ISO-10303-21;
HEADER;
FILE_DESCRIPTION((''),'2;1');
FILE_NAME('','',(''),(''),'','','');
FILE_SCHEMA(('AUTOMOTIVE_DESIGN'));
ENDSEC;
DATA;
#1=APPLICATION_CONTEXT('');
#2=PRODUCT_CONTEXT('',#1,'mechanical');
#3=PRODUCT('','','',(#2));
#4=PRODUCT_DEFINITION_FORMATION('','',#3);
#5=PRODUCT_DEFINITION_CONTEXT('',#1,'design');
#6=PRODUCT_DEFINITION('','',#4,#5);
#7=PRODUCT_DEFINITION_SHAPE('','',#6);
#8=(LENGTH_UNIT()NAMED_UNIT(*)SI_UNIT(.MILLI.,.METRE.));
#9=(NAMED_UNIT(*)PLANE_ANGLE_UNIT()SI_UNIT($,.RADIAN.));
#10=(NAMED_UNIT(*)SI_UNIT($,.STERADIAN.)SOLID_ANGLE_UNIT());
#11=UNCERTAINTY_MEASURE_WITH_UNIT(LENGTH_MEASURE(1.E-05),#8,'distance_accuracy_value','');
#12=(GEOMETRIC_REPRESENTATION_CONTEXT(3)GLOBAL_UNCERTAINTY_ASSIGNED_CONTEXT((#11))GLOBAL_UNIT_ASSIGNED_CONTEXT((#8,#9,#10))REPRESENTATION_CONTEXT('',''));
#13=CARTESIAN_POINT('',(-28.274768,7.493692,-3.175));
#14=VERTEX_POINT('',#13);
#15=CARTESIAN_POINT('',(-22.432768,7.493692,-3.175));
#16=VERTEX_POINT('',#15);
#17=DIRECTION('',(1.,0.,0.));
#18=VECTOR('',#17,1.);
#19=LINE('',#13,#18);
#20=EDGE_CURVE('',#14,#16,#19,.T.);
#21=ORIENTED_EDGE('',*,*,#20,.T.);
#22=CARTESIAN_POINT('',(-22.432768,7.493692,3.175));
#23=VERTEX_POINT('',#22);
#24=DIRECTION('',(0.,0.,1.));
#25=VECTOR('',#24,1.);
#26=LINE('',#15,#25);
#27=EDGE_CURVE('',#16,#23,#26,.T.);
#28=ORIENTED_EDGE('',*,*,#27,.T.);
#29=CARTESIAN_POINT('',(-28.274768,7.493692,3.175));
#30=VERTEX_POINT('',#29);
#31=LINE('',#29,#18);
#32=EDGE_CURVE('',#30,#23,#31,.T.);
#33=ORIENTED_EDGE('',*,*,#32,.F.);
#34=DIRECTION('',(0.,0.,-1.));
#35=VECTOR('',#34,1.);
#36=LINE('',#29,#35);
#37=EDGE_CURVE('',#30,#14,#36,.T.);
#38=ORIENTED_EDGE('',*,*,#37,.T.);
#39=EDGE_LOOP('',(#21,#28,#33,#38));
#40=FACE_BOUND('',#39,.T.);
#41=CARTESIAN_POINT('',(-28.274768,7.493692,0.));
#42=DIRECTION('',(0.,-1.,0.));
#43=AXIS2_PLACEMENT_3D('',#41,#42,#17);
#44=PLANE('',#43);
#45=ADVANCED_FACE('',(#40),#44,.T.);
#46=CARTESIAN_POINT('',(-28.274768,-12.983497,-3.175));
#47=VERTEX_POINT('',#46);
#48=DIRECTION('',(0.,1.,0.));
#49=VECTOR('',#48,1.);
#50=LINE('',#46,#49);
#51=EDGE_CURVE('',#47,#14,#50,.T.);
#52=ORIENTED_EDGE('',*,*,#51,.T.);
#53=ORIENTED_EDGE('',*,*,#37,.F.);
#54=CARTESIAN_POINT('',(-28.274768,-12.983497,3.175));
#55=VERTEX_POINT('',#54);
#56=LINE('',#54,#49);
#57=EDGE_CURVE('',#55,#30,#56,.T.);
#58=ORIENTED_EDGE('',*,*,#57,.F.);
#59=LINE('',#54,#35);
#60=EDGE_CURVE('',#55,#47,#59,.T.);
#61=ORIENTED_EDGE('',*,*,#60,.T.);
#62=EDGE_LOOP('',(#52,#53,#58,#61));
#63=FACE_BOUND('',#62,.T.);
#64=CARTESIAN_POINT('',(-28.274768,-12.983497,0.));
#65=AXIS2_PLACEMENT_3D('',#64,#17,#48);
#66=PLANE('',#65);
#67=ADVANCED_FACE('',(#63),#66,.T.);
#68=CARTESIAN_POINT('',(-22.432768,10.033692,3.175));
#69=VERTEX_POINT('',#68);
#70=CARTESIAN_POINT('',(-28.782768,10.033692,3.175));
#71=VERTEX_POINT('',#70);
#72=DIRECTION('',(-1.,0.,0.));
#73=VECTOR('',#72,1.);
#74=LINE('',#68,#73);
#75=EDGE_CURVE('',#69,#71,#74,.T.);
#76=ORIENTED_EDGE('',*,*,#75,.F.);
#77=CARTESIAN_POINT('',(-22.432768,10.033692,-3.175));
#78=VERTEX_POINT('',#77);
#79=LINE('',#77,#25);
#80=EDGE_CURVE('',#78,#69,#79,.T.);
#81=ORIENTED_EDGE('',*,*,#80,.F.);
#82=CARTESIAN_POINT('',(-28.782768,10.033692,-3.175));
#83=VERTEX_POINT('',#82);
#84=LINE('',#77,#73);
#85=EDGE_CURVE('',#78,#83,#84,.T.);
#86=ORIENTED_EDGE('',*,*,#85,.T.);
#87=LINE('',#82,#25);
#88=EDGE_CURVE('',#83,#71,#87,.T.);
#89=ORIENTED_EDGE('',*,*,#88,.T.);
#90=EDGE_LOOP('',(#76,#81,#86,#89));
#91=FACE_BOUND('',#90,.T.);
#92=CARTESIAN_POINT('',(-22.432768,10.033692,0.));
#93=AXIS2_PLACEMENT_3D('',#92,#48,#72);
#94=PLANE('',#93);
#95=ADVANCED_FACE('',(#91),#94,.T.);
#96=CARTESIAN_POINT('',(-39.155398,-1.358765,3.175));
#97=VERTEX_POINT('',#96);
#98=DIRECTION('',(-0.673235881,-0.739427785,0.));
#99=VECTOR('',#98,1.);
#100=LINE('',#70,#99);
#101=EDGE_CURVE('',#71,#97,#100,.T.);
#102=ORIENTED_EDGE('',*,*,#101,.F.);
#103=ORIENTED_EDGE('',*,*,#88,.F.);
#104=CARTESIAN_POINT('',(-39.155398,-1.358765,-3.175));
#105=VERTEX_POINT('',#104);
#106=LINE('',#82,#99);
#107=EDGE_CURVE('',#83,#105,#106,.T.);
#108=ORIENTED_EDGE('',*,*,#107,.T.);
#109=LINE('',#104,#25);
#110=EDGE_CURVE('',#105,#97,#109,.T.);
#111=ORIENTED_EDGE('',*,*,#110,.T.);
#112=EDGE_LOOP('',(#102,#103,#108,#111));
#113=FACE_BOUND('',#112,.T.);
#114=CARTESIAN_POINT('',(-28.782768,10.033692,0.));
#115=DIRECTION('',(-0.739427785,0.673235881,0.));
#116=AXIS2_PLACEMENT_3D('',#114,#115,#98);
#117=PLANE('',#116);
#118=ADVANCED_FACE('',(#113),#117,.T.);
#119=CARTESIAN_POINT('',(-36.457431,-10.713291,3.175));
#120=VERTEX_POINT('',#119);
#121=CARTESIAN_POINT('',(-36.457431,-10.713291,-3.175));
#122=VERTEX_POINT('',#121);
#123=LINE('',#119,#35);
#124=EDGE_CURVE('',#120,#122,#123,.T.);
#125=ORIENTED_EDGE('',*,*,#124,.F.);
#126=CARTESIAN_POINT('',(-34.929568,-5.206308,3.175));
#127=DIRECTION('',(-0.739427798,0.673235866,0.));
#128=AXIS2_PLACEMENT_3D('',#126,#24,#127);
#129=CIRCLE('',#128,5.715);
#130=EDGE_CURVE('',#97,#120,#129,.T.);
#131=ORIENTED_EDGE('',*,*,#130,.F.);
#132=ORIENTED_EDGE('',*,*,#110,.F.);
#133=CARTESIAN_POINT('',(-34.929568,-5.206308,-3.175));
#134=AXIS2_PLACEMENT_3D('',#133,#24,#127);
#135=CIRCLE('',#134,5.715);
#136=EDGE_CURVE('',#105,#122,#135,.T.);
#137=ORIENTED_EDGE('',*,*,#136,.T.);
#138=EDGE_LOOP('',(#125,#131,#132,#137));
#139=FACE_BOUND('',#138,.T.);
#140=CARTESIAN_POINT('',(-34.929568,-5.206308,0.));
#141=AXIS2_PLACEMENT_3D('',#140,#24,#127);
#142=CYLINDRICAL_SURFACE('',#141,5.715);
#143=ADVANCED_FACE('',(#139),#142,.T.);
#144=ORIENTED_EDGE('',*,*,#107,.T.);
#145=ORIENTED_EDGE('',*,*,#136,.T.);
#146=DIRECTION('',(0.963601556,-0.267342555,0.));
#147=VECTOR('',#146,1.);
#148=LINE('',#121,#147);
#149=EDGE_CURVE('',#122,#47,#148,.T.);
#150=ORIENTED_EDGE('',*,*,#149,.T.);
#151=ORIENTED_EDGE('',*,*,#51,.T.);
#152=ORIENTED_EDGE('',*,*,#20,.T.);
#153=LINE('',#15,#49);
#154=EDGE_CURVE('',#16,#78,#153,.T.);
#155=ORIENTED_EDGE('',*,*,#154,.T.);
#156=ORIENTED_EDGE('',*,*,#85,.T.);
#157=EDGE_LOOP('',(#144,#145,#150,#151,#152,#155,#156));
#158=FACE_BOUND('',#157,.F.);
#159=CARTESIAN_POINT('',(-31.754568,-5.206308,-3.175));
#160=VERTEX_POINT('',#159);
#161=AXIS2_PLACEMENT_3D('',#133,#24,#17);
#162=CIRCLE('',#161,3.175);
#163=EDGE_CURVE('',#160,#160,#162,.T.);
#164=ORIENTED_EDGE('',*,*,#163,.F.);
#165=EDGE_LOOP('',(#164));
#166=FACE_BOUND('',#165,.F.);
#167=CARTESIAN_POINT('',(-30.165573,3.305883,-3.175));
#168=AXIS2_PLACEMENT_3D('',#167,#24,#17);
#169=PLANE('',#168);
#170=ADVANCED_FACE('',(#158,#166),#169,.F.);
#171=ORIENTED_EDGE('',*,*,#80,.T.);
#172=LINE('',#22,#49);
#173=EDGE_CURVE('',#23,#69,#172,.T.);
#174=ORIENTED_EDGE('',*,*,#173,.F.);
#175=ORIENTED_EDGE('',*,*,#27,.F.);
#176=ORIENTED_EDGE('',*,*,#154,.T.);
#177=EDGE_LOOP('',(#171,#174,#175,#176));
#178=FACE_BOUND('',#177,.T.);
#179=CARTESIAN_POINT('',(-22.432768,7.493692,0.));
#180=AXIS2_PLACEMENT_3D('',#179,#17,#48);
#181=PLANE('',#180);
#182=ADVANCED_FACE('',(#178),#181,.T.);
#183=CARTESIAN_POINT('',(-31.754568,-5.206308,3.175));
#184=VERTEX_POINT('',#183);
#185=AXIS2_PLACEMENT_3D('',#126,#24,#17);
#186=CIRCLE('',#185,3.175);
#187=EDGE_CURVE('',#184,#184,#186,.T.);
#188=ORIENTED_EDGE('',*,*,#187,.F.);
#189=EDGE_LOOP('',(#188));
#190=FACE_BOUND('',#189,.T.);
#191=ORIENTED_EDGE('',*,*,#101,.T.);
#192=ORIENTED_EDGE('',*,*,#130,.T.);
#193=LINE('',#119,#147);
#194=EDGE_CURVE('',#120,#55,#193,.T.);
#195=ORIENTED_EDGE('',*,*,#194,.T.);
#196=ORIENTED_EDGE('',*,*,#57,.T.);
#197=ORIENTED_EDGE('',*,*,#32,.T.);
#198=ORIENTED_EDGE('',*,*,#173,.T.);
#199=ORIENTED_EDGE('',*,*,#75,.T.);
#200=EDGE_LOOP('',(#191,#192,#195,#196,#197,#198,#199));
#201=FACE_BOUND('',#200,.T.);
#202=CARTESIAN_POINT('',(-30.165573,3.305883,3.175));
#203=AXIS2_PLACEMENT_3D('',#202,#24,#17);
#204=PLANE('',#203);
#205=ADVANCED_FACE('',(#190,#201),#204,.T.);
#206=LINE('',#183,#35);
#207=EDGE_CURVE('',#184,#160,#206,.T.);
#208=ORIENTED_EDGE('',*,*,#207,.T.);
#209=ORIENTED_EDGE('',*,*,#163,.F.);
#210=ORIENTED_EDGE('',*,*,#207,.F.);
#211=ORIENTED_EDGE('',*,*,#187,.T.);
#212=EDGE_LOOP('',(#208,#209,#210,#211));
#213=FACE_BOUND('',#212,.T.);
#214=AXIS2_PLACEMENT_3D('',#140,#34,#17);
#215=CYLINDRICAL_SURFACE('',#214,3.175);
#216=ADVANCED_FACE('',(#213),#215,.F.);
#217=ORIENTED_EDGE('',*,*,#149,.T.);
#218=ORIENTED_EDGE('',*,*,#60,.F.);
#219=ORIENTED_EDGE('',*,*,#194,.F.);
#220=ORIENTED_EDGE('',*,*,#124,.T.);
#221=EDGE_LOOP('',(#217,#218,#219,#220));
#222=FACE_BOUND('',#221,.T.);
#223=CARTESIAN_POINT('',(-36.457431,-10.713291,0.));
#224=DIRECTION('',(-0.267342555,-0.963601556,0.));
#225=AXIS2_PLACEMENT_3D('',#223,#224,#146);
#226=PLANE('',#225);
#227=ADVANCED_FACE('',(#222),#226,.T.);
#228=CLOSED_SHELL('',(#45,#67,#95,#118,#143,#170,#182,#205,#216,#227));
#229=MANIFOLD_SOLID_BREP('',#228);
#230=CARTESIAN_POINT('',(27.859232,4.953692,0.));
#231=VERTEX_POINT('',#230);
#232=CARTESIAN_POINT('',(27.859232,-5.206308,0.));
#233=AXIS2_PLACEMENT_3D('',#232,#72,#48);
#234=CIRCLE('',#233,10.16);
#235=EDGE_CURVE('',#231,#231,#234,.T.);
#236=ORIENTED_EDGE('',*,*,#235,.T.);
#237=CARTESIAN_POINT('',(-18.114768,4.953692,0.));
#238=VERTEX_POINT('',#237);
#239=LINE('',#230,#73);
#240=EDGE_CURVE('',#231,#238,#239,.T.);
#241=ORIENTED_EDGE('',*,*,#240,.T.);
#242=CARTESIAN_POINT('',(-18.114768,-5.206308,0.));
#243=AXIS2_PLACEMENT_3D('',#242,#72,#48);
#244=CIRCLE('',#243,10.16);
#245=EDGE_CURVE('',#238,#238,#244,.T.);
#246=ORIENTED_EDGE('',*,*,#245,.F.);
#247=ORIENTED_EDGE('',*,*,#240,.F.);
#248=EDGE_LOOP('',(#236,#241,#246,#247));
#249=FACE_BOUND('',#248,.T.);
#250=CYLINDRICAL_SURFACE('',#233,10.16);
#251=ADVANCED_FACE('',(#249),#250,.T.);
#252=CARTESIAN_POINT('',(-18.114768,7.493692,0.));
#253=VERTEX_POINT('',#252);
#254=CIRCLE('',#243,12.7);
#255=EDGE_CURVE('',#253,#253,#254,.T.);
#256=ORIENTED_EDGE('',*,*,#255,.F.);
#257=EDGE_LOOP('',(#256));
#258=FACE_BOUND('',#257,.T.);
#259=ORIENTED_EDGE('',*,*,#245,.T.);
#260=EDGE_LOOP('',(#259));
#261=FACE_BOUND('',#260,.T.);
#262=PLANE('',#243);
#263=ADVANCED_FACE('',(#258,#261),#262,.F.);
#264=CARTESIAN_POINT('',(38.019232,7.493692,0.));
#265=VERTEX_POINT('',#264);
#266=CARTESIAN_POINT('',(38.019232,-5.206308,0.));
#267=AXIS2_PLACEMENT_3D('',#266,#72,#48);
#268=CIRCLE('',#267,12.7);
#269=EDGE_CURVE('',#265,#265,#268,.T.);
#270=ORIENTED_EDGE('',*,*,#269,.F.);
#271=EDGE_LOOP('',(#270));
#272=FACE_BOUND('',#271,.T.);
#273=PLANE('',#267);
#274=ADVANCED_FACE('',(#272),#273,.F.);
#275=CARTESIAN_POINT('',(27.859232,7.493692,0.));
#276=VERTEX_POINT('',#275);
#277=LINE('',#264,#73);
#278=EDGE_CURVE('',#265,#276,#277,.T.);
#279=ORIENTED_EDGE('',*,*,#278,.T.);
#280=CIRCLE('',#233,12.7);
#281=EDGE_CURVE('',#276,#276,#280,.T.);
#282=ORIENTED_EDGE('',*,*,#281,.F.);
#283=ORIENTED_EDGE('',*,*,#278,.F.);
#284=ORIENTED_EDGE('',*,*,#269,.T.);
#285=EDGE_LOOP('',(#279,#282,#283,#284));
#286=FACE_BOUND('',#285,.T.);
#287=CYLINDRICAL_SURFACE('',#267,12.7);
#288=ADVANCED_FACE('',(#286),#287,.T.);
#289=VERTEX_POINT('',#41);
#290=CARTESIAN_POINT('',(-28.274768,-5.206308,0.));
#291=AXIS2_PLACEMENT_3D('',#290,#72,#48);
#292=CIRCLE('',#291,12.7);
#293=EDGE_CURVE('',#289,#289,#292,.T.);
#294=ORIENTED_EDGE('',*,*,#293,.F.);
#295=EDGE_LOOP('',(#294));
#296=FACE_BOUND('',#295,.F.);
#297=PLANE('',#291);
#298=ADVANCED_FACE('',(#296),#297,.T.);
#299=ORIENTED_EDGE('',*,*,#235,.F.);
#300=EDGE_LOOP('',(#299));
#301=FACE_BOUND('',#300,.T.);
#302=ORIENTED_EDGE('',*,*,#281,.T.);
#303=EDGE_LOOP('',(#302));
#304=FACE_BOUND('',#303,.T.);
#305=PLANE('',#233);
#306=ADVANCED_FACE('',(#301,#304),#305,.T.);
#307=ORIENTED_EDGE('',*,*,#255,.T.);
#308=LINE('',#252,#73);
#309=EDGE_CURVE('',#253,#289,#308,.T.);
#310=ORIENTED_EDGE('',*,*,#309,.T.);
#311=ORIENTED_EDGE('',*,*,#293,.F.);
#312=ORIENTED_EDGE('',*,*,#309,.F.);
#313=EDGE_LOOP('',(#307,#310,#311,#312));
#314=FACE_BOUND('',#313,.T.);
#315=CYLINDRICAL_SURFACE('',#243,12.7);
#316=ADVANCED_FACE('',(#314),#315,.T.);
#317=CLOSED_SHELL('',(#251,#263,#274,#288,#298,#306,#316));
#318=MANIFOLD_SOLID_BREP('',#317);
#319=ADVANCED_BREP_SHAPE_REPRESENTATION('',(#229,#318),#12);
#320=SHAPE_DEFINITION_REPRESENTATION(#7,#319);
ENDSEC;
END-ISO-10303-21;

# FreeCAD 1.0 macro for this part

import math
import FreeCAD as App
import Part
import Sketcher

V = App.Vector
Q = App.Units.Quantity


def add_polygon(sketch, points):
    """Adds a closed chain of lines whose ends are joined by coincident constraints."""
    first, n = sketch.GeometryCount, len(points)
    for a, b in zip(points, points[1:] + points[:1]):
        sketch.addGeometry(Part.LineSegment(App.Vector(*a, 0), App.Vector(*b, 0)), False)
    for i in range(n):
        sketch.addConstraint(Sketcher.Constraint("Coincident", first + i, 2, first + (i + 1) % n, 1))

doc = App.newDocument("Part")
body = doc.addObject("PartDesign::Body", "Body")

# Sketch on XY plane
sketch1 = body.newObject("Sketcher::SketchObject", "Sketch")
sketch1.AttachmentSupport = (doc.getObject("XY_Plane"), [""])
sketch1.MapMode = "FlatFace"
add_polygon(sketch1, [(38, -5.2), (38, 7.5), (27.9, 7.5), (27.9, 5), (-18.1, 5), (-18.1, 7.5), (-28.3, 7.5), (-28.3, -5.2)])  # lines 0-7
sketch1.addGeometry(Part.LineSegment(V(38, -5.2, 0), V(-28.3, -5.2, 0)), True)  # axis
sketch1.addConstraint(Sketcher.Constraint("Vertical", 0))
sketch1.addConstraint(Sketcher.Constraint("Horizontal", 1))
sketch1.addConstraint(Sketcher.Constraint("Vertical", 2))
sketch1.addConstraint(Sketcher.Constraint("Horizontal", 3))
sketch1.addConstraint(Sketcher.Constraint("Vertical", 4))
sketch1.addConstraint(Sketcher.Constraint("Horizontal", 5))
sketch1.addConstraint(Sketcher.Constraint("Vertical", 6))
sketch1.addConstraint(Sketcher.Constraint("Horizontal", 7))
sketch1.addConstraint(Sketcher.Constraint("Horizontal", 8))
sketch1.addConstraint(Sketcher.Constraint("Coincident", 8, 1, 7, 2))
sketch1.addConstraint(Sketcher.Constraint("Horizontal", 1, 2, 4, 2))
sketch1.addConstraint(Sketcher.Constraint("Vertical", 5, 2, 8, 2))
sketch1.addConstraint(Sketcher.Constraint("Equal", 1, 5))
sketch1.addConstraint(Sketcher.Constraint("DistanceX", 1, 2, 1, 1, Q("0.4 in")))
sketch1.addConstraint(Sketcher.Constraint("DistanceY", 0, 1, 0, 2, Q("0.5 in")))
sketch1.addConstraint(Sketcher.Constraint("DistanceY", 2, 2, 2, 1, Q("0.1 in")))
sketch1.addConstraint(Sketcher.Constraint("DistanceX", 3, 2, 3, 1, Q("1.81 in")))
sketch1.addConstraint(Sketcher.Constraint("DistanceX", -1, 1, 1, 2, 27.859232))
sketch1.addConstraint(Sketcher.Constraint("DistanceY", -1, 1, 0, 2, 7.493692))
revolution = body.newObject("PartDesign::Revolution", "Revolution")
revolution.Profile = sketch1
revolution.ReferenceAxis = (sketch1, ["Axis0"])
revolution.Angle = 360
body2 = doc.addObject("PartDesign::Body", "Body001")

# Sketch on XY plane
sketch2 = body2.newObject("Sketcher::SketchObject", "Sketch001")
sketch2.AttachmentSupport = (doc.getObject("XY_Plane001"), [""])
sketch2.MapMode = "FlatFace"
sketch2.addGeometry(Part.LineSegment(V(-28.3, 7.5, 0), V(-22.4, 7.5, 0)), False)
sketch2.addGeometry(Part.LineSegment(V(-22.4, 7.5, 0), V(-22.4, 10, 0)), False)
sketch2.addGeometry(Part.LineSegment(V(-22.4, 10, 0), V(-28.8, 10, 0)), False)
sketch2.addGeometry(Part.LineSegment(V(-28.8, 10, 0), V(-39.2, -1.4, 0)), False)
sketch2.addGeometry(Part.ArcOfCircle(Part.Circle(V(-34.9, -5.2, 0), V(0, 0, 1), 5.7), math.radians(138), math.radians(254)), False)
sketch2.addGeometry(Part.LineSegment(V(-36.5, -10.7, 0), V(-28.3, -13, 0)), False)
sketch2.addGeometry(Part.LineSegment(V(-28.3, -13, 0), V(-28.3, 7.5, 0)), False)
sketch2.addGeometry(Part.Circle(V(-34.9, -5.2, 0), V(0, 0, 1), 3.2), False)
sketch2.addConstraint(Sketcher.Constraint("Coincident", 0, 2, 1, 1))
sketch2.addConstraint(Sketcher.Constraint("Coincident", 1, 2, 2, 1))
sketch2.addConstraint(Sketcher.Constraint("Coincident", 2, 2, 3, 1))
sketch2.addConstraint(Sketcher.Constraint("Tangent", 3, 2, 4, 1))
sketch2.addConstraint(Sketcher.Constraint("Tangent", 4, 2, 5, 1))
sketch2.addConstraint(Sketcher.Constraint("Coincident", 5, 2, 6, 1))
sketch2.addConstraint(Sketcher.Constraint("Coincident", 6, 2, 0, 1))
sketch2.addConstraint(Sketcher.Constraint("Horizontal", 0))
sketch2.addConstraint(Sketcher.Constraint("Vertical", 1))
sketch2.addConstraint(Sketcher.Constraint("Horizontal", 2))
sketch2.addConstraint(Sketcher.Constraint("Vertical", 6))
sketch2.addConstraint(Sketcher.Constraint("Coincident", 7, 3, 4, 3))
sketch2.addConstraint(Sketcher.Constraint("Diameter", 7, Q("0.25 in")))
sketch2.addConstraint(Sketcher.Constraint("DistanceY", 1, 1, 1, 2, Q("0.1 in")))
sketch2.addConstraint(Sketcher.Constraint("Radius", 4, Q("0.225 in")))
sketch2.addConstraint(Sketcher.Constraint("DistanceX", 0, 1, 0, 2, Q("0.23 in")))
sketch2.addConstraint(Sketcher.Constraint("DistanceX", 2, 2, 2, 1, Q("0.25 in")))
sketch2.addConstraint(Sketcher.Constraint("DistanceY", 7, 3, 0, 2, Q("0.5 in")))
sketch2.addConstraint(Sketcher.Constraint("DistanceX", 7, 3, 0, 2, Q("0.492 in")))
sketch2.addConstraint(Sketcher.Constraint("DistanceY", 6, 1, 6, 2, 20.477189))
sketch2.addConstraint(Sketcher.Constraint("DistanceX", 4, 3, -1, 1, 34.929568))
sketch2.addConstraint(Sketcher.Constraint("DistanceY", 4, 3, -1, 1, 5.206308))
pad1 = body2.newObject("PartDesign::Pad", "Pad")
pad1.Profile = sketch2
pad1.Length = Q("0.25 in")
pad1.Midplane = True

doc.recompute()
